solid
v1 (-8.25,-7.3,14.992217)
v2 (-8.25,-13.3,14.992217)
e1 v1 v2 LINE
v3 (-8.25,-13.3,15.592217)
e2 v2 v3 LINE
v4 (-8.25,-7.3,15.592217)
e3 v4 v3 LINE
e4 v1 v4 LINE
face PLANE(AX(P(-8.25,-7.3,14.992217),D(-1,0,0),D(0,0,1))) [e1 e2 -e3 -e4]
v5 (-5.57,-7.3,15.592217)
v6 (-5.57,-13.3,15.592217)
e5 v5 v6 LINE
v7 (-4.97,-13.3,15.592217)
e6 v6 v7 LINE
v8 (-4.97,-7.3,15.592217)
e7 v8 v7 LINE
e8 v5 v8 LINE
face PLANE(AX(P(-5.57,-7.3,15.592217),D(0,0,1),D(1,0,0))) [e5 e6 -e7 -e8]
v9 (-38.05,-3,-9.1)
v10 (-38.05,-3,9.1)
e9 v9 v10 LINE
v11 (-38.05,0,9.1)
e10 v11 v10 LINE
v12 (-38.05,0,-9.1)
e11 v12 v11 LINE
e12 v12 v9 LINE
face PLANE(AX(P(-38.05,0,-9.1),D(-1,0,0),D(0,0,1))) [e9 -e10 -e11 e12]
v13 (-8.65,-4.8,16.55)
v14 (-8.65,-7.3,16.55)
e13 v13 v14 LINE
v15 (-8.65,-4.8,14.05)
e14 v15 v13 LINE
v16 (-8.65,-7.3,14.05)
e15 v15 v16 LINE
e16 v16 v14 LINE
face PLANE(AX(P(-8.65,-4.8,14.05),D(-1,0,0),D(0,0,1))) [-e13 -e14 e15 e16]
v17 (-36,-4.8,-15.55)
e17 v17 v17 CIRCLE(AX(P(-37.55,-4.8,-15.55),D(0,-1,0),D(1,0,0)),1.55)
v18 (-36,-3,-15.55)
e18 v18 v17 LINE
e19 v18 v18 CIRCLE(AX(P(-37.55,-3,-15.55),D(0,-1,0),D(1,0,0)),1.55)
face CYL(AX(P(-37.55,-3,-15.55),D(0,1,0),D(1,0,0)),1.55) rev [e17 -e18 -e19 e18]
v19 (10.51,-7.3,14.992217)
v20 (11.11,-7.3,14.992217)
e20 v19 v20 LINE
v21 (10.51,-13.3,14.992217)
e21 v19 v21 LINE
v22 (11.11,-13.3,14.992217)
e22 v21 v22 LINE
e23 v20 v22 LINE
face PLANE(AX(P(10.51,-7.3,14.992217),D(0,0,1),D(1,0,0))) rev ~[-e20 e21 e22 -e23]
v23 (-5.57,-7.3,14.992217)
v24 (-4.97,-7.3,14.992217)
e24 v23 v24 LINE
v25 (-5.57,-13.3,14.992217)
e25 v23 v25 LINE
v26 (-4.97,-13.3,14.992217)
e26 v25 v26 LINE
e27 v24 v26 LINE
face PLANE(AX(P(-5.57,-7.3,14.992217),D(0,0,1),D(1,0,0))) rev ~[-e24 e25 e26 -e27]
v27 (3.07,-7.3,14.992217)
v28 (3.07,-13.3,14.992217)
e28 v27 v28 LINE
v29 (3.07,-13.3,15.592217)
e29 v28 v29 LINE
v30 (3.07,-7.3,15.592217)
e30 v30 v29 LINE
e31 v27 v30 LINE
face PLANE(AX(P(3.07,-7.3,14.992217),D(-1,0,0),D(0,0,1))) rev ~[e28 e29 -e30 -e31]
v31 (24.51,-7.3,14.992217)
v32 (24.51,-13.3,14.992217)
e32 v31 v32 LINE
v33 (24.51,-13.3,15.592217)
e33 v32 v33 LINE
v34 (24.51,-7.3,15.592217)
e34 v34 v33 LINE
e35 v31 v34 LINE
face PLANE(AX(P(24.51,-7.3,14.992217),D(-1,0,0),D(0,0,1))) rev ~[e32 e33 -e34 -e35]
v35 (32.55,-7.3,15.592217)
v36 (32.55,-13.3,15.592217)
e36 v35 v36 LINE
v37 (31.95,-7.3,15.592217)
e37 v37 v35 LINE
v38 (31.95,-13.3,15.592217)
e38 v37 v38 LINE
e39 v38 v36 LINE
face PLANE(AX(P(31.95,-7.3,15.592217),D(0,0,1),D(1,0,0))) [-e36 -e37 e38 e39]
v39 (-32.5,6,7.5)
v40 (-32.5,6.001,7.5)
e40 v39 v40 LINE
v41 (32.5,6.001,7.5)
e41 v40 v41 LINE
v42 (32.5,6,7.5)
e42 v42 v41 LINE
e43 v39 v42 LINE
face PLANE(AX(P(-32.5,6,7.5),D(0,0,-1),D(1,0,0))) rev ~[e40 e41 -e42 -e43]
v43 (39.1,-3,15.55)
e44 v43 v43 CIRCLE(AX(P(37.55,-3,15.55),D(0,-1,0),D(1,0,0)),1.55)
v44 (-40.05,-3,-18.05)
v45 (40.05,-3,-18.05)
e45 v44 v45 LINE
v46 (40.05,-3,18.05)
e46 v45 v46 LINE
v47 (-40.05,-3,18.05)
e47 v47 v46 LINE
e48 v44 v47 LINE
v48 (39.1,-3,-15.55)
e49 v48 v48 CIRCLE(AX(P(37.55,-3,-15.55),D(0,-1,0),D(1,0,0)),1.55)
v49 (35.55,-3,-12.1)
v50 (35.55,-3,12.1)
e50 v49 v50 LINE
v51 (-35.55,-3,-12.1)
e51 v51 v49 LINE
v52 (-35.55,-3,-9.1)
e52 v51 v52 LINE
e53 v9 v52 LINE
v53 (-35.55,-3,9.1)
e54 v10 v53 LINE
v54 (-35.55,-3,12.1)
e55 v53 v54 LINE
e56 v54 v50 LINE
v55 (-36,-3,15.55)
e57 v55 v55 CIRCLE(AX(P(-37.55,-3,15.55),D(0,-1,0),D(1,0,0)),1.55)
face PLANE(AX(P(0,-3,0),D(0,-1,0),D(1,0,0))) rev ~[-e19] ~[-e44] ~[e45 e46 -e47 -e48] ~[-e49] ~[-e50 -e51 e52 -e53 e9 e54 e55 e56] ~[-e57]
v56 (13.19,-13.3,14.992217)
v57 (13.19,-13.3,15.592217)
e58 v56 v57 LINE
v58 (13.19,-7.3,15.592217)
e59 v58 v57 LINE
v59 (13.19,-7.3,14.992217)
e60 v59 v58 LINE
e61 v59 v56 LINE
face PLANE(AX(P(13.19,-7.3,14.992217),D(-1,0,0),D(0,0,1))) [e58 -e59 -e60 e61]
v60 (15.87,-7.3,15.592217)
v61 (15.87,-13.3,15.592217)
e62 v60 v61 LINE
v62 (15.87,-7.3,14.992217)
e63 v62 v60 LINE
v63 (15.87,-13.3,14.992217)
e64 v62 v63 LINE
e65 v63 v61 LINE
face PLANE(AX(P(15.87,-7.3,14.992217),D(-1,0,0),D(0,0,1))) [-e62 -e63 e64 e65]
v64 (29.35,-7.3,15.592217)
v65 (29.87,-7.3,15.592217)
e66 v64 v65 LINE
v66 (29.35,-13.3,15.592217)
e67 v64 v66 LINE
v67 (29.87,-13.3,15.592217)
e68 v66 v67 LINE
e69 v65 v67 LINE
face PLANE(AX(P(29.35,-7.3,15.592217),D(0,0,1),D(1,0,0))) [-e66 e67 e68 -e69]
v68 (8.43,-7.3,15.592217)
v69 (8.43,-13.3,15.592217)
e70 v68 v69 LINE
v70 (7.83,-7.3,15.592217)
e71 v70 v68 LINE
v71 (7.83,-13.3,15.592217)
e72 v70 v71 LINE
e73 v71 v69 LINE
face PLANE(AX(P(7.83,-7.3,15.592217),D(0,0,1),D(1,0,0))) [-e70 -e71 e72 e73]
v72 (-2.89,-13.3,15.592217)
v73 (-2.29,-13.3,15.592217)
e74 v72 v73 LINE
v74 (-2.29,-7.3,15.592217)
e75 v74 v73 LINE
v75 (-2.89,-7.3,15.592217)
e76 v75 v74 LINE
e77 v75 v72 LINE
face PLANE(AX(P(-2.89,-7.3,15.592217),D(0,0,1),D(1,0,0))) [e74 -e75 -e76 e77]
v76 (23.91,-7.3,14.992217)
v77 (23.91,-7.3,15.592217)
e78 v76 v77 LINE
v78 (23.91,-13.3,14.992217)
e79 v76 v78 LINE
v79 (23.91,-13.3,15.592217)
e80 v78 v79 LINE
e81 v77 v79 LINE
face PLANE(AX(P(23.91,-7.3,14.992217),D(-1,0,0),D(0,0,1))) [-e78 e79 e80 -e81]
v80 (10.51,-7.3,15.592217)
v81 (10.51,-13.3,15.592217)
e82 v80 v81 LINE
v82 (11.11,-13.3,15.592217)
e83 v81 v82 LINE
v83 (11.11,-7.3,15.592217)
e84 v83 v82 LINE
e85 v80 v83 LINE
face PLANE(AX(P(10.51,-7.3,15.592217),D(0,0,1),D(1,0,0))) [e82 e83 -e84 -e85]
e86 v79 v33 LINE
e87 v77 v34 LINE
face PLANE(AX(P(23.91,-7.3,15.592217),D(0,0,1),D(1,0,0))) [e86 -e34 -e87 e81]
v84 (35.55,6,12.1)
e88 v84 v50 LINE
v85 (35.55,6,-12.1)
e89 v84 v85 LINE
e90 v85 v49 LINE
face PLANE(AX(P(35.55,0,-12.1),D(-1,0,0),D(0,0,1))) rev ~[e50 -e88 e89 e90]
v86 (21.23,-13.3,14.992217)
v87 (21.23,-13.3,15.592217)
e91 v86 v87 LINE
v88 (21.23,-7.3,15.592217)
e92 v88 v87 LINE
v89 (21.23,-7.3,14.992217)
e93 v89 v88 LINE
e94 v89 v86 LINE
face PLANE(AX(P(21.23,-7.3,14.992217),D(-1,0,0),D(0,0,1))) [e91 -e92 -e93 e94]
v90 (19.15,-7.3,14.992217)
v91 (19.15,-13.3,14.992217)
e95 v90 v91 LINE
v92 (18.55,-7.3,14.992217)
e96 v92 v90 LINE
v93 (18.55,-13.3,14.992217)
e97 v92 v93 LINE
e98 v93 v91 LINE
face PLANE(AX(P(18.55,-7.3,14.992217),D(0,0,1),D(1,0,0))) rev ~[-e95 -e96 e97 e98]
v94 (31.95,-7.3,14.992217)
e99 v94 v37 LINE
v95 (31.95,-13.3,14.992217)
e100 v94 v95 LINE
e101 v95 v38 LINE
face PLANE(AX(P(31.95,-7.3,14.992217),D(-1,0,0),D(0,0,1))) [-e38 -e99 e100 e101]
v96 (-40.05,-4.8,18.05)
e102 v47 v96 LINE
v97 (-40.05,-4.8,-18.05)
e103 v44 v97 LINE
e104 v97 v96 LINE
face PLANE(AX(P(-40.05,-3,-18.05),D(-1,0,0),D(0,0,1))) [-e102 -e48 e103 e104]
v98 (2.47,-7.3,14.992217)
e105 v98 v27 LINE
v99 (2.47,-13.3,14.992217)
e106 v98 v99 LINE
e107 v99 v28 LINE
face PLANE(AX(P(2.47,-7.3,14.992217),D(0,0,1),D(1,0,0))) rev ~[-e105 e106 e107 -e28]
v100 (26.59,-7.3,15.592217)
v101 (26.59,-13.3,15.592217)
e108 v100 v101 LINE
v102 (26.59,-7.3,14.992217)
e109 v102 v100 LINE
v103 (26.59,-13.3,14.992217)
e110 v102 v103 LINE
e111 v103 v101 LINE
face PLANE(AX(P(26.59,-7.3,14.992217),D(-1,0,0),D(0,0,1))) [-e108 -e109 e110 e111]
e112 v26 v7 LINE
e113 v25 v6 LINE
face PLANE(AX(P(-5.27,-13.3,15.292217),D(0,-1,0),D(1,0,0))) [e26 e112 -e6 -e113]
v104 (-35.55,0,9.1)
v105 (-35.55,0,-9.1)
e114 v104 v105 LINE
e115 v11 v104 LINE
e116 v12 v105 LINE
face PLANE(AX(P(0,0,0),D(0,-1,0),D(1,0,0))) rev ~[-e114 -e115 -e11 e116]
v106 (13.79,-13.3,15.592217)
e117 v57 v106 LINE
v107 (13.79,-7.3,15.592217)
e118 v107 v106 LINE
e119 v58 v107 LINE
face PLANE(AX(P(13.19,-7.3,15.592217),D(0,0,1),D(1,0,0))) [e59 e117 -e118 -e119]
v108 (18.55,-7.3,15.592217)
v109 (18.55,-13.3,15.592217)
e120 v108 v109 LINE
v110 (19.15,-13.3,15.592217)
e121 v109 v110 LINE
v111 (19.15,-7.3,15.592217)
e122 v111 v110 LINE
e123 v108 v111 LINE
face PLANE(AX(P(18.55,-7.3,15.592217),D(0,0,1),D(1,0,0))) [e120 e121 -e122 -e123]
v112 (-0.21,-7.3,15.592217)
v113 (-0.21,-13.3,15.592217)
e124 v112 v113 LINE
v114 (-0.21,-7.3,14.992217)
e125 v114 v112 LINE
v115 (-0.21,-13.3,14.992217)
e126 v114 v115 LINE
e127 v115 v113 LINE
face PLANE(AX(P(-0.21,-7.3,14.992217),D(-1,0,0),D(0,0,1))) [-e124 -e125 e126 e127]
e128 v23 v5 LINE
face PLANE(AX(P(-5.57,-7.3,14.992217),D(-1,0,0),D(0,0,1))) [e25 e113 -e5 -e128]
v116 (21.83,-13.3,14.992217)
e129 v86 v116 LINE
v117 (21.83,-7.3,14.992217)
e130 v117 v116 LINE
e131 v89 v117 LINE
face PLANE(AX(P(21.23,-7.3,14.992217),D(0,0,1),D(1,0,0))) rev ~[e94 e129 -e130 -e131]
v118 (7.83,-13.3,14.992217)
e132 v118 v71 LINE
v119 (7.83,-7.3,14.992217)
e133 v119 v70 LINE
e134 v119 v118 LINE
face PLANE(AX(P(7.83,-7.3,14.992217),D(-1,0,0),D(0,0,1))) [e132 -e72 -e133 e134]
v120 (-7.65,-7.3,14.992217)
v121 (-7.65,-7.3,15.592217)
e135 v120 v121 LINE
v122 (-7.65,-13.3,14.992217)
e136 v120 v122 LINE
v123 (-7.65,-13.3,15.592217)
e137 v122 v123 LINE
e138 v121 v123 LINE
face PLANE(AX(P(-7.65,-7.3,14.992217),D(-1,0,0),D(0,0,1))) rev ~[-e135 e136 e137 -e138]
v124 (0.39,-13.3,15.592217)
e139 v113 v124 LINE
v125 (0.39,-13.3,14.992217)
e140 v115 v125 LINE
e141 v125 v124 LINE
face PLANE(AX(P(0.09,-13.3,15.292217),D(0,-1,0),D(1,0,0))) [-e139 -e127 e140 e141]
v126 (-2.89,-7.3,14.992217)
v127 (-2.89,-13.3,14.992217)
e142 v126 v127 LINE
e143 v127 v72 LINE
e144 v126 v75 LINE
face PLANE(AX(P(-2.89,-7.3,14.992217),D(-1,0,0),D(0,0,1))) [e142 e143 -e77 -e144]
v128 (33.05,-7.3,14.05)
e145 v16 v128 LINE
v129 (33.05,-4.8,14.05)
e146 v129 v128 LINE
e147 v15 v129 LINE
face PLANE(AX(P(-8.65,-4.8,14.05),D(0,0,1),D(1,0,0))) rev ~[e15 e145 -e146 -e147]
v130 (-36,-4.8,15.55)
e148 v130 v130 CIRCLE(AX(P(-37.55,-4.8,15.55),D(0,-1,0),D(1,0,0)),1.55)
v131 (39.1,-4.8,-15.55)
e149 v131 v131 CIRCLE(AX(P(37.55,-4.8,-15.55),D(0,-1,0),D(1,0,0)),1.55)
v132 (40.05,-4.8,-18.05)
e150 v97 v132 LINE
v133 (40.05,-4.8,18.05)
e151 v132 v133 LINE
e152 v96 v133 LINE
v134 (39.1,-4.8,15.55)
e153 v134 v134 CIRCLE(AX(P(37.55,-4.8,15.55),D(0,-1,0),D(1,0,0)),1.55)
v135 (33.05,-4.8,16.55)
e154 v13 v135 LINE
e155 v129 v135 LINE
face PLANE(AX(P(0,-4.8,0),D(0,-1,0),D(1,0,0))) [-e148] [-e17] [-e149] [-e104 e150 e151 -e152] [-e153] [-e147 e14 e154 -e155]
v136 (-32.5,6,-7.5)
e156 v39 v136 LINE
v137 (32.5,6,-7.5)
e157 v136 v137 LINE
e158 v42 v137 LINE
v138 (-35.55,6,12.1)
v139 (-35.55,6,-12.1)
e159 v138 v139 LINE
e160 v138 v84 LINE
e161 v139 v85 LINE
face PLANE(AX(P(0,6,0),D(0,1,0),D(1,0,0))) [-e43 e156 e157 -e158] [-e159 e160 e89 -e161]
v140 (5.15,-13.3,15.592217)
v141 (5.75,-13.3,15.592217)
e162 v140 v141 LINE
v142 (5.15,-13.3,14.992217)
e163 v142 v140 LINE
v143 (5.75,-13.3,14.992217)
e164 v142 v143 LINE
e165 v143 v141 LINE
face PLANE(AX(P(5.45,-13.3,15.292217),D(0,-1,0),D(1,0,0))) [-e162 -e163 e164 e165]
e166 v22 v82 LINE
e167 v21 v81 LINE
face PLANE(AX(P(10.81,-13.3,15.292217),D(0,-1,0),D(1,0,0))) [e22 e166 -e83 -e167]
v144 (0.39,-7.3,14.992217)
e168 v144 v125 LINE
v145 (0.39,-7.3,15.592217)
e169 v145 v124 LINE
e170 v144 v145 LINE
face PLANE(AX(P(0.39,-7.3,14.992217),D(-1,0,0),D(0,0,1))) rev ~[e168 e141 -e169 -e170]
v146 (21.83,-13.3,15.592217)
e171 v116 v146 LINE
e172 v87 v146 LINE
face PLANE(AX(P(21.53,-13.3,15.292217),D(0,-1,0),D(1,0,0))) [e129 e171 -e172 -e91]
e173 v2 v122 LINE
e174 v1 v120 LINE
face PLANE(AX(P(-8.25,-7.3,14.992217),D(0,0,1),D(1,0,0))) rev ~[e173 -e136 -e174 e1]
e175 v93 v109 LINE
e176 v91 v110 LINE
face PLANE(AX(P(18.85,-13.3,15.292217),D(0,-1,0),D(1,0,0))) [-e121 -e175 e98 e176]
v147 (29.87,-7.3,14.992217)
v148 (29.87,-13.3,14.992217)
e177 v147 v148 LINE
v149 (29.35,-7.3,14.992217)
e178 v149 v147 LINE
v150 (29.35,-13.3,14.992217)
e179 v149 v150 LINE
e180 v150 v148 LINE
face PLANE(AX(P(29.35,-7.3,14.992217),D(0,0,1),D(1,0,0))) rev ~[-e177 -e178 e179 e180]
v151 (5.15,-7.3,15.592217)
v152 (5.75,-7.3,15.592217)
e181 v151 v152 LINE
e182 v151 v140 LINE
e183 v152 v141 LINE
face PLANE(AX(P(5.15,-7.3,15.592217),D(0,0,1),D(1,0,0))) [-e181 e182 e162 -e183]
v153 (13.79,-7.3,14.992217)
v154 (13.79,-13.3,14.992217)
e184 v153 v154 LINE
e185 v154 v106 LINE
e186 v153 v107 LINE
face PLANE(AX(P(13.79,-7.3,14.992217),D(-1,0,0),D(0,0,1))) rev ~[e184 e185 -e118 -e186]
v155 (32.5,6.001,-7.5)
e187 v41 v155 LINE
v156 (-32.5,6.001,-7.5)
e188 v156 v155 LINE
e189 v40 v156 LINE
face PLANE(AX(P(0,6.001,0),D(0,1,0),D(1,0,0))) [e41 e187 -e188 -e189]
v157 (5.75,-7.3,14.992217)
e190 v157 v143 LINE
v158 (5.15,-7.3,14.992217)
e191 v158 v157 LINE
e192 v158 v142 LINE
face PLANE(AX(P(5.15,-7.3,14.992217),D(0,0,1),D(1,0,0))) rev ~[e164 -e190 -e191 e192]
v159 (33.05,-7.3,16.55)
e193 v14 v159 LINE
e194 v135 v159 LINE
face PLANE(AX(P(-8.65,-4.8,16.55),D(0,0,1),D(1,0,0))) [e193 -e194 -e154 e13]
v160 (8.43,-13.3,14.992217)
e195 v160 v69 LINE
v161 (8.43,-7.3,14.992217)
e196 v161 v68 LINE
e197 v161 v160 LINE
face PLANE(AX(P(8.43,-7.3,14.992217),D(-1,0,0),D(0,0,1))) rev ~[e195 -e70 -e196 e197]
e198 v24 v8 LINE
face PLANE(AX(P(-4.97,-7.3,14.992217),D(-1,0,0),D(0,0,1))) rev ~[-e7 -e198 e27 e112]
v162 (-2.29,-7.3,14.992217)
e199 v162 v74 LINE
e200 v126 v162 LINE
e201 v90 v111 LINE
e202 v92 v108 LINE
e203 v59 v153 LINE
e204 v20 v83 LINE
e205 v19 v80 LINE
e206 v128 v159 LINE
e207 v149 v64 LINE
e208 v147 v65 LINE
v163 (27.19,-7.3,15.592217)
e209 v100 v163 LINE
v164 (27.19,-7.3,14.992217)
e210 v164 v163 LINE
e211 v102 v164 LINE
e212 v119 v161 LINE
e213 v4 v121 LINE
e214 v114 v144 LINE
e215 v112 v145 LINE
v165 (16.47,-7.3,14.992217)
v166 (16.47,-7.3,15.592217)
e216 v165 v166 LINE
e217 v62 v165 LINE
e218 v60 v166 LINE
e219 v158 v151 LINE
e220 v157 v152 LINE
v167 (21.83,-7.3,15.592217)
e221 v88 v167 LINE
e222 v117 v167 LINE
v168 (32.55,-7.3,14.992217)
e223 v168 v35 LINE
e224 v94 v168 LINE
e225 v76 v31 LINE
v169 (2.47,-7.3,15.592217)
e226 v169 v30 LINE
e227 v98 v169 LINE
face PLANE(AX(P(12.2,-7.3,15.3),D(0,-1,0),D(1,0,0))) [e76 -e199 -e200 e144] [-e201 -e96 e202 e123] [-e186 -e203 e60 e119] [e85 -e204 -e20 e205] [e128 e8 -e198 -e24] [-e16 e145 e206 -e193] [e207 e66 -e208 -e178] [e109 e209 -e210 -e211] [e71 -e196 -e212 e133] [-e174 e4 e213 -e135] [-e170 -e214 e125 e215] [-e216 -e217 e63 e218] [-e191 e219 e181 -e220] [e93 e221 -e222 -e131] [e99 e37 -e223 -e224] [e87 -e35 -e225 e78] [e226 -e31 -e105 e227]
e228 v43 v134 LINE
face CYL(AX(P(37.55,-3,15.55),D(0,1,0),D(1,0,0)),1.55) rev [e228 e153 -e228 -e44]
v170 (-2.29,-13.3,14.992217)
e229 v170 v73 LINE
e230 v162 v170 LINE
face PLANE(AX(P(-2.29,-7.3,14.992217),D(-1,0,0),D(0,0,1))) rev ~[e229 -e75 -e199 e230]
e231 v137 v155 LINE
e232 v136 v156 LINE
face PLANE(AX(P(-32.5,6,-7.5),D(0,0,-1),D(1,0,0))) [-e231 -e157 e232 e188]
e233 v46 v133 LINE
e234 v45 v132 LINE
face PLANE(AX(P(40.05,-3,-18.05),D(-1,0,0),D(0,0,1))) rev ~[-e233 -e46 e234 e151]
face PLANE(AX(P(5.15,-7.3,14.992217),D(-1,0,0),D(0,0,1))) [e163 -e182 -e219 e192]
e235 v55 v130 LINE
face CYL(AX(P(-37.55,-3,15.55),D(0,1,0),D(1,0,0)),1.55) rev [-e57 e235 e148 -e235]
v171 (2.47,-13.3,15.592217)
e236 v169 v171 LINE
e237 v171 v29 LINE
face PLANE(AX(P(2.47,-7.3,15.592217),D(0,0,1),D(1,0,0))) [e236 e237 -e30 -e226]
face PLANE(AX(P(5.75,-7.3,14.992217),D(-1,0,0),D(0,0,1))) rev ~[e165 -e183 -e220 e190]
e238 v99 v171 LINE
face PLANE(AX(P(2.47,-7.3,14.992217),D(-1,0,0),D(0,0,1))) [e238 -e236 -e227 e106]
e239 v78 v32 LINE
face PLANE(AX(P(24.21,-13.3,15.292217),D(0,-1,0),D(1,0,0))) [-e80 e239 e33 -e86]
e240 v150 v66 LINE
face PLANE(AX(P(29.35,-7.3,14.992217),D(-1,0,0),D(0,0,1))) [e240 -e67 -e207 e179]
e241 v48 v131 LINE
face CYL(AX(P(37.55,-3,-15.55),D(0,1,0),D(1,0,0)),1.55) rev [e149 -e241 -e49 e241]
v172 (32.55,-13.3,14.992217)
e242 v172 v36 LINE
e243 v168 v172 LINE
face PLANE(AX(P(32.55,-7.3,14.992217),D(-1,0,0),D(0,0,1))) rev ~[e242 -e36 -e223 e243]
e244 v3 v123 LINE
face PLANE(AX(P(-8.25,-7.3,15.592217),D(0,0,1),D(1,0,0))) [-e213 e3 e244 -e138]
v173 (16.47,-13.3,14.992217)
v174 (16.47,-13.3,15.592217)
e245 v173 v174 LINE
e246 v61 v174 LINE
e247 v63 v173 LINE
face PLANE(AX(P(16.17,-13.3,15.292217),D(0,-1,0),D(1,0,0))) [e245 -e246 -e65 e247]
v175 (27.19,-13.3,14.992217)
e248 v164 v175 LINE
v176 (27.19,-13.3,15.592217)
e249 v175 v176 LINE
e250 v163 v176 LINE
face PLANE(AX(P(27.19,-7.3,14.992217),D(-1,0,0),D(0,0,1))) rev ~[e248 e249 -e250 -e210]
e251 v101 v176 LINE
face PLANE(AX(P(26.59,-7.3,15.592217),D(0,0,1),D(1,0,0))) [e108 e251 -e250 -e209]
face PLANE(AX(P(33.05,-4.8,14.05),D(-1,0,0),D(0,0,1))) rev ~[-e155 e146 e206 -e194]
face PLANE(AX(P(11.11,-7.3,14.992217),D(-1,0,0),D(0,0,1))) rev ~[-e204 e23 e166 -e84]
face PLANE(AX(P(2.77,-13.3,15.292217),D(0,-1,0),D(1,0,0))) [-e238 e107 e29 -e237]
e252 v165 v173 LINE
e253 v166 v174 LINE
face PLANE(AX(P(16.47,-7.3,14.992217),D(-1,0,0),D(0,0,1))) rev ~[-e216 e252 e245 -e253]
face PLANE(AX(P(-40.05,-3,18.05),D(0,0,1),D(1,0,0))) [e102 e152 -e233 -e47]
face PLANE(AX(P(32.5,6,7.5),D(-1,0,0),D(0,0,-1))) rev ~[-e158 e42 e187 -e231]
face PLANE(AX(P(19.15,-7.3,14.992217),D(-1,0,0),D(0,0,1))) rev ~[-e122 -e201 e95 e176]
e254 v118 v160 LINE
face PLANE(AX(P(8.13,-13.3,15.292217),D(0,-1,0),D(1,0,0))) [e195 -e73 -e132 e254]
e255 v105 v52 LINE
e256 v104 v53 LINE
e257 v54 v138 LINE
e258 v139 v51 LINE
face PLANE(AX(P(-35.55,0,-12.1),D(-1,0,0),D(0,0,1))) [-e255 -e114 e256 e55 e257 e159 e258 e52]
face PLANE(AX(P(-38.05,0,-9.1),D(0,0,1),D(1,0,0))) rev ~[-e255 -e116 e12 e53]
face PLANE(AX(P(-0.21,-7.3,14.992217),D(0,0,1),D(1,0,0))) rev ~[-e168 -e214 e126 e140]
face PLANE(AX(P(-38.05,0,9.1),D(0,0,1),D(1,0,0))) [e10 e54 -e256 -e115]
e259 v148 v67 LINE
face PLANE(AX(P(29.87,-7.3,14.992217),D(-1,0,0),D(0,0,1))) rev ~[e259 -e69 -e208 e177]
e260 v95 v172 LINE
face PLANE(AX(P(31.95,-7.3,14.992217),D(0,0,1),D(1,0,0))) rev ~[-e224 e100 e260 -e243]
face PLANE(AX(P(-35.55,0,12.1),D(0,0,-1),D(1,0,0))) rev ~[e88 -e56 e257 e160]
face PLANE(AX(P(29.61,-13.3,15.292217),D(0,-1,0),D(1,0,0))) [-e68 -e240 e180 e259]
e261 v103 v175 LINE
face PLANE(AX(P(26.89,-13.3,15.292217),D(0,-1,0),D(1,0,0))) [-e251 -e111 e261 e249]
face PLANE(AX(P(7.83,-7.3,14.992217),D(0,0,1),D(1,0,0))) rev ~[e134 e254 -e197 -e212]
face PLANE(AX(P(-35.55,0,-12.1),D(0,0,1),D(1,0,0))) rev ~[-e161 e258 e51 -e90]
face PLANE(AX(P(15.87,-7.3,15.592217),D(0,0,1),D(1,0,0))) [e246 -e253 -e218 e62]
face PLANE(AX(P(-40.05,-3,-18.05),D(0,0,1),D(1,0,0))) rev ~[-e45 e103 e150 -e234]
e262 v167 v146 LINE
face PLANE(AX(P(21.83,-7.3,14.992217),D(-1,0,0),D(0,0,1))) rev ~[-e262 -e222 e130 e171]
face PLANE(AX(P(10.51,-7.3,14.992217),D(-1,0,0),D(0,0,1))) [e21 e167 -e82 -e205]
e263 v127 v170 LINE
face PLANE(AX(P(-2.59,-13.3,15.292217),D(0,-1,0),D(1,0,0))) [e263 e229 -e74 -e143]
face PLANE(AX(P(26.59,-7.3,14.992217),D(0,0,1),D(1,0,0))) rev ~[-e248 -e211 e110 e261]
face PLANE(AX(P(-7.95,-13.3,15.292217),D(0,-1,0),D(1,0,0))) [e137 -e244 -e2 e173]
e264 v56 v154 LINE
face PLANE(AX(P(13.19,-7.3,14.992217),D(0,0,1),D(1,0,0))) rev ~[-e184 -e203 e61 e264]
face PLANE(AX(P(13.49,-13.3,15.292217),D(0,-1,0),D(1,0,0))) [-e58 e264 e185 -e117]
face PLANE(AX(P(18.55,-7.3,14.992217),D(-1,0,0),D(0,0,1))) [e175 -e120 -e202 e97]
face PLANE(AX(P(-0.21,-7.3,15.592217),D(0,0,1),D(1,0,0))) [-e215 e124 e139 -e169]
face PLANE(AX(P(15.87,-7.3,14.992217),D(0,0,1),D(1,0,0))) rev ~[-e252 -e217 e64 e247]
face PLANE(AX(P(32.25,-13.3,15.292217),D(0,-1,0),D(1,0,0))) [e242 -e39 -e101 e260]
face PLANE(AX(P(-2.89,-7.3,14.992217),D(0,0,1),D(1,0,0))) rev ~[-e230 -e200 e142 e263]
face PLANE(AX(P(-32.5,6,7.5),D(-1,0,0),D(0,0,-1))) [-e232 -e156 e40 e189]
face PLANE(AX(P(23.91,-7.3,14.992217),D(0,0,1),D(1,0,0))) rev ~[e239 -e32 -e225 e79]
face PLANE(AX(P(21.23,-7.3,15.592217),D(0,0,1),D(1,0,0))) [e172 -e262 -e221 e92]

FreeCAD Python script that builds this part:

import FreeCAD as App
import Part
import Sketcher
from FreeCAD import Vector

doc = App.newDocument("Part")
body = doc.addObject("PartDesign::Body", "Body")

# Sketch on XZ plane
sketch1 = body.newObject("Sketcher::SketchObject", "Sketch")
sketch1.AttachmentSupport = (doc.getObject("XZ_Plane"), [""])
sketch1.MapMode = "FlatFace"
sketch1.addGeometry(Part.LineSegment(Vector(-36, -12, 0), Vector(-36, 12, 0)), False)
sketch1.addGeometry(Part.LineSegment(Vector(-36, 12, 0), Vector(36, 12, 0)), False)
sketch1.addGeometry(Part.LineSegment(Vector(36, 12, 0), Vector(36, -12, 0)), False)
sketch1.addGeometry(Part.LineSegment(Vector(36, -12, 0), Vector(-36, -12, 0)), False)
sketch1.addConstraint(Sketcher.Constraint("Coincident", 0, 2, 1, 1))
sketch1.addConstraint(Sketcher.Constraint("Coincident", 1, 2, 2, 1))
sketch1.addConstraint(Sketcher.Constraint("Coincident", 2, 2, 3, 1))
sketch1.addConstraint(Sketcher.Constraint("Coincident", 3, 2, 0, 1))
sketch1.addConstraint(Sketcher.Constraint("Vertical", 0))
sketch1.addConstraint(Sketcher.Constraint("Horizontal", 1))
sketch1.addConstraint(Sketcher.Constraint("Vertical", 2))
sketch1.addConstraint(Sketcher.Constraint("Horizontal", 3))
sketch1.addConstraint(Sketcher.Constraint("Symmetric", 0, 2, 2, 2, -1, 1))
sketch1.addConstraint(Sketcher.Constraint("DistanceX", 1, 1, 1, 2, 71.1))
sketch1.addConstraint(Sketcher.Constraint("DistanceY", 0, 1, 0, 2, 24.2))
pad1 = body.newObject("PartDesign::Pad", "Pad")
pad1.Profile = sketch1
pad1.Length = 6
pad1.Reversed = True

# Sketch on XZ plane
sketch2 = body.newObject("Sketcher::SketchObject", "Sketch001")
sketch2.AttachmentSupport = (doc.getObject("XZ_Plane"), [""])
sketch2.MapMode = "FlatFace"
sketch2.addGeometry(Part.LineSegment(Vector(-35.5, -9.1, 0), Vector(-35.5, -12.1, 0)), False)
sketch2.addGeometry(Part.LineSegment(Vector(-35.5, -12.1, 0), Vector(35.5, -12.1, 0)), False)
sketch2.addGeometry(Part.LineSegment(Vector(35.5, -12.1, 0), Vector(35.5, 12.1, 0)), False)
sketch2.addGeometry(Part.LineSegment(Vector(35.5, 12.1, 0), Vector(-35.5, 12.1, 0)), False)
sketch2.addGeometry(Part.LineSegment(Vector(-35.5, 12.1, 0), Vector(-35.5, 9.1, 0)), False)
sketch2.addGeometry(Part.LineSegment(Vector(-35.5, 9.1, 0), Vector(-38, 9.1, 0)), False)
sketch2.addGeometry(Part.LineSegment(Vector(-38, 9.1, 0), Vector(-38, -9.1, 0)), False)
sketch2.addGeometry(Part.LineSegment(Vector(-38, -9.1, 0), Vector(-35.5, -9.1, 0)), False)
sketch2.addConstraint(Sketcher.Constraint("Coincident", 0, 2, 1, 1))
sketch2.addConstraint(Sketcher.Constraint("Coincident", 1, 2, 2, 1))
sketch2.addConstraint(Sketcher.Constraint("Coincident", 2, 2, 3, 1))
sketch2.addConstraint(Sketcher.Constraint("Coincident", 3, 2, 4, 1))
sketch2.addConstraint(Sketcher.Constraint("Coincident", 4, 2, 5, 1))
sketch2.addConstraint(Sketcher.Constraint("Coincident", 5, 2, 6, 1))
sketch2.addConstraint(Sketcher.Constraint("Coincident", 6, 2, 7, 1))
sketch2.addConstraint(Sketcher.Constraint("Coincident", 7, 2, 0, 1))
sketch2.addConstraint(Sketcher.Constraint("Vertical", 0))
sketch2.addConstraint(Sketcher.Constraint("Horizontal", 1))
sketch2.addConstraint(Sketcher.Constraint("Vertical", 2))
sketch2.addConstraint(Sketcher.Constraint("Horizontal", 3))
sketch2.addConstraint(Sketcher.Constraint("Vertical", 4))
sketch2.addConstraint(Sketcher.Constraint("Horizontal", 5))
sketch2.addConstraint(Sketcher.Constraint("Vertical", 6))
sketch2.addConstraint(Sketcher.Constraint("Horizontal", 7))
sketch2.addConstraint(Sketcher.Constraint("Symmetric", 0, 2, 2, 2, -1, 1))
sketch2.addConstraint(Sketcher.Constraint("Symmetric", 4, 2, 7, 2, -1))
sketch2.addConstraint(Sketcher.Constraint("DistanceY", 0, 2, 0, 1, 3.0))
sketch2.addConstraint(Sketcher.Constraint("DistanceX", 1, 1, 1, 2, 71.1))
sketch2.addConstraint(Sketcher.Constraint("DistanceX", 5, 2, 5, 1, 2.5))
sketch2.addConstraint(Sketcher.Constraint("DistanceY", 2, 1, 2, 2, 24.2))
pad2 = body.newObject("PartDesign::Pad", "Pad001")
pad2.Profile = sketch2
pad2.Length = 3

# Sketch on XZ plane
sketch3 = body.newObject("Sketcher::SketchObject", "Sketch002")
sketch3.AttachmentSupport = (doc.getObject("XZ_Plane"), [""])
sketch3.MapMode = "FlatFace"
sketch3.AttachmentOffset = App.Placement(Vector(0, 0, 3), App.Rotation())
sketch3.addGeometry(Part.LineSegment(Vector(-40, 18.1, 0), Vector(-40, -18.1, 0)), False)
sketch3.addGeometry(Part.LineSegment(Vector(-40, -18.1, 0), Vector(40, -18.1, 0)), False)
sketch3.addGeometry(Part.LineSegment(Vector(40, -18.1, 0), Vector(40, 18.1, 0)), False)
sketch3.addGeometry(Part.LineSegment(Vector(40, 18.1, 0), Vector(-40, 18.1, 0)), False)
sketch3.addGeometry(Part.Circle(Vector(-37.5, -15.6, 0), Vector(0, 0, 1), 1.6), False)
sketch3.addGeometry(Part.Circle(Vector(37.5, -15.6, 0), Vector(0, 0, 1), 1.6), False)
sketch3.addGeometry(Part.Circle(Vector(-37.5, 15.6, 0), Vector(0, 0, 1), 1.6), False)
sketch3.addGeometry(Part.Circle(Vector(37.5, 15.6, 0), Vector(0, 0, 1), 1.6), False)
sketch3.addConstraint(Sketcher.Constraint("Coincident", 0, 2, 1, 1))
sketch3.addConstraint(Sketcher.Constraint("Coincident", 1, 2, 2, 1))
sketch3.addConstraint(Sketcher.Constraint("Coincident", 2, 2, 3, 1))
sketch3.addConstraint(Sketcher.Constraint("Coincident", 3, 2, 0, 1))
sketch3.addConstraint(Sketcher.Constraint("Vertical", 0))
sketch3.addConstraint(Sketcher.Constraint("Horizontal", 1))
sketch3.addConstraint(Sketcher.Constraint("Vertical", 2))
sketch3.addConstraint(Sketcher.Constraint("Horizontal", 3))
sketch3.addConstraint(Sketcher.Constraint("Equal", 4, 5))
sketch3.addConstraint(Sketcher.Constraint("Equal", 5, 6))
sketch3.addConstraint(Sketcher.Constraint("Equal", 6, 7))
sketch3.addConstraint(Sketcher.Constraint("Symmetric", 5, 3, 6, 3, -1, 1))
sketch3.addConstraint(Sketcher.Constraint("Symmetric", 4, 3, 7, 3, -1, 1))
sketch3.addConstraint(Sketcher.Constraint("Symmetric", 0, 2, 2, 2, -1, 1))
sketch3.addConstraint(Sketcher.Constraint("Symmetric", 4, 3, 5, 3, -2))
sketch3.addConstraint(Sketcher.Constraint("Diameter", 4, 3.1))
sketch3.addConstraint(Sketcher.Constraint("DistanceX", 1, 1, 1, 2, 80.1))
sketch3.addConstraint(Sketcher.Constraint("DistanceY", 0, 2, 0, 1, 36.1))
sketch3.addConstraint(Sketcher.Constraint("DistanceX", 4, 3, 5, 3, 75.1))
sketch3.addConstraint(Sketcher.Constraint("DistanceY", 4, 3, 6, 3, 31.1))
pad3 = body.newObject("PartDesign::Pad", "Pad002")
pad3.Profile = sketch3
pad3.Length = 1.8

# Sketch on XZ plane
sketch4 = body.newObject("Sketcher::SketchObject", "Sketch003")
sketch4.AttachmentSupport = (doc.getObject("XZ_Plane"), [""])
sketch4.MapMode = "FlatFace"
sketch4.AttachmentOffset = App.Placement(Vector(0, 0, -6), App.Rotation())
sketch4.addGeometry(Part.LineSegment(Vector(-32, -8, 0), Vector(-32, 8, 0)), False)
sketch4.addGeometry(Part.LineSegment(Vector(-32, 8, 0), Vector(32, 8, 0)), False)
sketch4.addGeometry(Part.LineSegment(Vector(32, 8, 0), Vector(32, -8, 0)), False)
sketch4.addGeometry(Part.LineSegment(Vector(32, -8, 0), Vector(-32, -8, 0)), False)
sketch4.addConstraint(Sketcher.Constraint("Coincident", 0, 2, 1, 1))
sketch4.addConstraint(Sketcher.Constraint("Coincident", 1, 2, 2, 1))
sketch4.addConstraint(Sketcher.Constraint("Coincident", 2, 2, 3, 1))
sketch4.addConstraint(Sketcher.Constraint("Coincident", 3, 2, 0, 1))
sketch4.addConstraint(Sketcher.Constraint("Vertical", 0))
sketch4.addConstraint(Sketcher.Constraint("Horizontal", 1))
sketch4.addConstraint(Sketcher.Constraint("Vertical", 2))
sketch4.addConstraint(Sketcher.Constraint("Horizontal", 3))
sketch4.addConstraint(Sketcher.Constraint("Symmetric", 0, 2, 2, 2, -1, 1))
sketch4.addConstraint(Sketcher.Constraint("DistanceX", 1, 1, 1, 2, 65.0))
sketch4.addConstraint(Sketcher.Constraint("DistanceY", 0, 1, 0, 2, 15.0))
pad4 = body.newObject("PartDesign::Pad", "Pad003")
pad4.Profile = sketch4
pad4.Type = "TwoLengths"
pad4.Length = 0.001
pad4.Length2 = 6
pad4.Reversed = True

# Sketch on XZ plane
sketch5 = body.newObject("Sketcher::SketchObject", "Sketch004")
sketch5.AttachmentSupport = (doc.getObject("XZ_Plane"), [""])
sketch5.MapMode = "FlatFace"
sketch5.AttachmentOffset = App.Placement(Vector(0, 0, 4.8), App.Rotation())
sketch5.addGeometry(Part.LineSegment(Vector(-8.7, 16.6, 0), Vector(-8.7, 14.1, 0)), False)
sketch5.addGeometry(Part.LineSegment(Vector(-8.7, 14.1, 0), Vector(33, 14.1, 0)), False)
sketch5.addGeometry(Part.LineSegment(Vector(33, 14.1, 0), Vector(33, 16.6, 0)), False)
sketch5.addGeometry(Part.LineSegment(Vector(33, 16.6, 0), Vector(-8.7, 16.6, 0)), False)
sketch5.addConstraint(Sketcher.Constraint("Coincident", 0, 2, 1, 1))
sketch5.addConstraint(Sketcher.Constraint("Coincident", 1, 2, 2, 1))
sketch5.addConstraint(Sketcher.Constraint("Coincident", 2, 2, 3, 1))
sketch5.addConstraint(Sketcher.Constraint("Coincident", 3, 2, 0, 1))
sketch5.addConstraint(Sketcher.Constraint("Vertical", 0))
sketch5.addConstraint(Sketcher.Constraint("Horizontal", 1))
sketch5.addConstraint(Sketcher.Constraint("Vertical", 2))
sketch5.addConstraint(Sketcher.Constraint("Horizontal", 3))
sketch5.addConstraint(Sketcher.Constraint("DistanceX", 1, 1, 1, 2, 41.7))
sketch5.addConstraint(Sketcher.Constraint("DistanceY", 0, 2, 0, 1, 2.5))
sketch5.addConstraint(Sketcher.Constraint("DistanceX", 0, 2, -1, 1, 8.65))
sketch5.addConstraint(Sketcher.Constraint("DistanceY", -1, 1, 0, 2, 14.05))
pad5 = body.newObject("PartDesign::Pad", "Pad004")
pad5.Profile = sketch5
pad5.Length = 2.5

# Sketch on XZ plane
sketch6 = body.newObject("Sketcher::SketchObject", "Sketch005")
sketch6.AttachmentSupport = (doc.getObject("XZ_Plane"), [""])
sketch6.MapMode = "FlatFace"
sketch6.AttachmentOffset = App.Placement(Vector(0, 0, 7.3), App.Rotation())
sketch6.addGeometry(Part.LineSegment(Vector(31.9, 15.6, 0), Vector(31.9, 15, 0)), False)
sketch6.addGeometry(Part.LineSegment(Vector(31.9, 15, 0), Vector(32.5, 15, 0)), False)
sketch6.addGeometry(Part.LineSegment(Vector(32.5, 15, 0), Vector(32.5, 15.6, 0)), False)
sketch6.addGeometry(Part.LineSegment(Vector(32.5, 15.6, 0), Vector(31.9, 15.6, 0)), False)
sketch6.addGeometry(Part.LineSegment(Vector(29.4, 15.6, 0), Vector(29.4, 15, 0)), False)
sketch6.addGeometry(Part.LineSegment(Vector(29.4, 15, 0), Vector(29.9, 15, 0)), False)
sketch6.addGeometry(Part.LineSegment(Vector(29.9, 15, 0), Vector(29.9, 15.6, 0)), False)
sketch6.addGeometry(Part.LineSegment(Vector(29.9, 15.6, 0), Vector(29.4, 15.6, 0)), False)
sketch6.addGeometry(Part.LineSegment(Vector(26.6, 15.6, 0), Vector(26.6, 15, 0)), False)
sketch6.addGeometry(Part.LineSegment(Vector(26.6, 15, 0), Vector(27.2, 15, 0)), False)
sketch6.addGeometry(Part.LineSegment(Vector(27.2, 15, 0), Vector(27.2, 15.6, 0)), False)
sketch6.addGeometry(Part.LineSegment(Vector(27.2, 15.6, 0), Vector(26.6, 15.6, 0)), False)
sketch6.addGeometry(Part.LineSegment(Vector(23.9, 15.6, 0), Vector(23.9, 15, 0)), False)
sketch6.addGeometry(Part.LineSegment(Vector(23.9, 15, 0), Vector(24.5, 15, 0)), False)
sketch6.addGeometry(Part.LineSegment(Vector(24.5, 15, 0), Vector(24.5, 15.6, 0)), False)
sketch6.addGeometry(Part.LineSegment(Vector(24.5, 15.6, 0), Vector(23.9, 15.6, 0)), False)
sketch6.addGeometry(Part.LineSegment(Vector(21.2, 15.6, 0), Vector(21.2, 15, 0)), False)
sketch6.addGeometry(Part.LineSegment(Vector(21.2, 15, 0), Vector(21.8, 15, 0)), False)
sketch6.addGeometry(Part.LineSegment(Vector(21.8, 15, 0), Vector(21.8, 15.6, 0)), False)
sketch6.addGeometry(Part.LineSegment(Vector(21.8, 15.6, 0), Vector(21.2, 15.6, 0)), False)
sketch6.addGeometry(Part.LineSegment(Vector(18.6, 15.6, 0), Vector(18.6, 15, 0)), False)
sketch6.addGeometry(Part.LineSegment(Vector(18.6, 15, 0), Vector(19.1, 15, 0)), False)
sketch6.addGeometry(Part.LineSegment(Vector(19.1, 15, 0), Vector(19.1, 15.6, 0)), False)
sketch6.addGeometry(Part.LineSegment(Vector(19.1, 15.6, 0), Vector(18.6, 15.6, 0)), False)
sketch6.addGeometry(Part.LineSegment(Vector(15.9, 15.6, 0), Vector(15.9, 15, 0)), False)
sketch6.addGeometry(Part.LineSegment(Vector(15.9, 15, 0), Vector(16.5, 15, 0)), False)
sketch6.addGeometry(Part.LineSegment(Vector(16.5, 15, 0), Vector(16.5, 15.6, 0)), False)
sketch6.addGeometry(Part.LineSegment(Vector(16.5, 15.6, 0), Vector(15.9, 15.6, 0)), False)
sketch6.addGeometry(Part.LineSegment(Vector(13.2, 15.6, 0), Vector(13.2, 15, 0)), False)
sketch6.addGeometry(Part.LineSegment(Vector(13.2, 15, 0), Vector(13.8, 15, 0)), False)
sketch6.addGeometry(Part.LineSegment(Vector(13.8, 15, 0), Vector(13.8, 15.6, 0)), False)
sketch6.addGeometry(Part.LineSegment(Vector(13.8, 15.6, 0), Vector(13.2, 15.6, 0)), False)
sketch6.addGeometry(Part.LineSegment(Vector(10.5, 15.6, 0), Vector(10.5, 15, 0)), False)
sketch6.addGeometry(Part.LineSegment(Vector(10.5, 15, 0), Vector(11.1, 15, 0)), False)
sketch6.addGeometry(Part.LineSegment(Vector(11.1, 15, 0), Vector(11.1, 15.6, 0)), False)
sketch6.addGeometry(Part.LineSegment(Vector(11.1, 15.6, 0), Vector(10.5, 15.6, 0)), False)
sketch6.addGeometry(Part.LineSegment(Vector(7.8, 15.6, 0), Vector(7.8, 15, 0)), False)
sketch6.addGeometry(Part.LineSegment(Vector(7.8, 15, 0), Vector(8.4, 15, 0)), False)
sketch6.addGeometry(Part.LineSegment(Vector(8.4, 15, 0), Vector(8.4, 15.6, 0)), False)
sketch6.addGeometry(Part.LineSegment(Vector(8.4, 15.6, 0), Vector(7.8, 15.6, 0)), False)
sketch6.addGeometry(Part.LineSegment(Vector(5.2, 15.6, 0), Vector(5.2, 15, 0)), False)
sketch6.addGeometry(Part.LineSegment(Vector(5.2, 15, 0), Vector(5.8, 15, 0)), False)
sketch6.addGeometry(Part.LineSegment(Vector(5.8, 15, 0), Vector(5.8, 15.6, 0)), False)
sketch6.addGeometry(Part.LineSegment(Vector(5.8, 15.6, 0), Vector(5.2, 15.6, 0)), False)
sketch6.addGeometry(Part.LineSegment(Vector(2.5, 15.6, 0), Vector(2.5, 15, 0)), False)
sketch6.addGeometry(Part.LineSegment(Vector(2.5, 15, 0), Vector(3.1, 15, 0)), False)
sketch6.addGeometry(Part.LineSegment(Vector(3.1, 15, 0), Vector(3.1, 15.6, 0)), False)
sketch6.addGeometry(Part.LineSegment(Vector(3.1, 15.6, 0), Vector(2.5, 15.6, 0)), False)
sketch6.addGeometry(Part.LineSegment(Vector(-8.2, 15.6, 0), Vector(-8.2, 15, 0)), False)
sketch6.addGeometry(Part.LineSegment(Vector(-8.2, 15, 0), Vector(-7.7, 15, 0)), False)
sketch6.addGeometry(Part.LineSegment(Vector(-7.7, 15, 0), Vector(-7.7, 15.6, 0)), False)
sketch6.addGeometry(Part.LineSegment(Vector(-7.7, 15.6, 0), Vector(-8.2, 15.6, 0)), False)
sketch6.addGeometry(Part.LineSegment(Vector(-5.6, 15.6, 0), Vector(-5.6, 15, 0)), False)
sketch6.addGeometry(Part.LineSegment(Vector(-5.6, 15, 0), Vector(-5, 15, 0)), False)
sketch6.addGeometry(Part.LineSegment(Vector(-5, 15, 0), Vector(-5, 15.6, 0)), False)
sketch6.addGeometry(Part.LineSegment(Vector(-5, 15.6, 0), Vector(-5.6, 15.6, 0)), False)
sketch6.addGeometry(Part.LineSegment(Vector(-0.2, 15.6, 0), Vector(-0.2, 15, 0)), False)
sketch6.addGeometry(Part.LineSegment(Vector(-0.2, 15, 0), Vector(0.4, 15, 0)), False)
sketch6.addGeometry(Part.LineSegment(Vector(0.4, 15, 0), Vector(0.4, 15.6, 0)), False)
sketch6.addGeometry(Part.LineSegment(Vector(0.4, 15.6, 0), Vector(-0.2, 15.6, 0)), False)
sketch6.addGeometry(Part.LineSegment(Vector(-2.9, 15.6, 0), Vector(-2.9, 15, 0)), False)
sketch6.addGeometry(Part.LineSegment(Vector(-2.9, 15, 0), Vector(-2.3, 15, 0)), False)
sketch6.addGeometry(Part.LineSegment(Vector(-2.3, 15, 0), Vector(-2.3, 15.6, 0)), False)
sketch6.addGeometry(Part.LineSegment(Vector(-2.3, 15.6, 0), Vector(-2.9, 15.6, 0)), False)
sketch6.addConstraint(Sketcher.Constraint("Coincident", 0, 2, 1, 1))
sketch6.addConstraint(Sketcher.Constraint("Coincident", 1, 2, 2, 1))
sketch6.addConstraint(Sketcher.Constraint("Coincident", 2, 2, 3, 1))
sketch6.addConstraint(Sketcher.Constraint("Coincident", 3, 2, 0, 1))
sketch6.addConstraint(Sketcher.Constraint("Coincident", 4, 2, 5, 1))
sketch6.addConstraint(Sketcher.Constraint("Coincident", 5, 2, 6, 1))
sketch6.addConstraint(Sketcher.Constraint("Coincident", 6, 2, 7, 1))
sketch6.addConstraint(Sketcher.Constraint("Coincident", 7, 2, 4, 1))
sketch6.addConstraint(Sketcher.Constraint("Coincident", 8, 2, 9, 1))
sketch6.addConstraint(Sketcher.Constraint("Coincident", 9, 2, 10, 1))
sketch6.addConstraint(Sketcher.Constraint("Coincident", 10, 2, 11, 1))
sketch6.addConstraint(Sketcher.Constraint("Coincident", 11, 2, 8, 1))
sketch6.addConstraint(Sketcher.Constraint("Coincident", 12, 2, 13, 1))
sketch6.addConstraint(Sketcher.Constraint("Coincident", 13, 2, 14, 1))
sketch6.addConstraint(Sketcher.Constraint("Coincident", 14, 2, 15, 1))
sketch6.addConstraint(Sketcher.Constraint("Coincident", 15, 2, 12, 1))
sketch6.addConstraint(Sketcher.Constraint("Coincident", 16, 2, 17, 1))
sketch6.addConstraint(Sketcher.Constraint("Coincident", 17, 2, 18, 1))
sketch6.addConstraint(Sketcher.Constraint("Coincident", 18, 2, 19, 1))
sketch6.addConstraint(Sketcher.Constraint("Coincident", 19, 2, 16, 1))
sketch6.addConstraint(Sketcher.Constraint("Coincident", 20, 2, 21, 1))
sketch6.addConstraint(Sketcher.Constraint("Coincident", 21, 2, 22, 1))
sketch6.addConstraint(Sketcher.Constraint("Coincident", 22, 2, 23, 1))
sketch6.addConstraint(Sketcher.Constraint("Coincident", 23, 2, 20, 1))
sketch6.addConstraint(Sketcher.Constraint("Coincident", 24, 2, 25, 1))
sketch6.addConstraint(Sketcher.Constraint("Coincident", 25, 2, 26, 1))
sketch6.addConstraint(Sketcher.Constraint("Coincident", 26, 2, 27, 1))
sketch6.addConstraint(Sketcher.Constraint("Coincident", 27, 2, 24, 1))
sketch6.addConstraint(Sketcher.Constraint("Coincident", 28, 2, 29, 1))
sketch6.addConstraint(Sketcher.Constraint("Coincident", 29, 2, 30, 1))
sketch6.addConstraint(Sketcher.Constraint("Coincident", 30, 2, 31, 1))
sketch6.addConstraint(Sketcher.Constraint("Coincident", 31, 2, 28, 1))
sketch6.addConstraint(Sketcher.Constraint("Coincident", 32, 2, 33, 1))
sketch6.addConstraint(Sketcher.Constraint("Coincident", 33, 2, 34, 1))
sketch6.addConstraint(Sketcher.Constraint("Coincident", 34, 2, 35, 1))
sketch6.addConstraint(Sketcher.Constraint("Coincident", 35, 2, 32, 1))
sketch6.addConstraint(Sketcher.Constraint("Coincident", 36, 2, 37, 1))
sketch6.addConstraint(Sketcher.Constraint("Coincident", 37, 2, 38, 1))
sketch6.addConstraint(Sketcher.Constraint("Coincident", 38, 2, 39, 1))
sketch6.addConstraint(Sketcher.Constraint("Coincident", 39, 2, 36, 1))
sketch6.addConstraint(Sketcher.Constraint("Coincident", 40, 2, 41, 1))
sketch6.addConstraint(Sketcher.Constraint("Coincident", 41, 2, 42, 1))
sketch6.addConstraint(Sketcher.Constraint("Coincident", 42, 2, 43, 1))
sketch6.addConstraint(Sketcher.Constraint("Coincident", 43, 2, 40, 1))
sketch6.addConstraint(Sketcher.Constraint("Coincident", 44, 2, 45, 1))
sketch6.addConstraint(Sketcher.Constraint("Coincident", 45, 2, 46, 1))
sketch6.addConstraint(Sketcher.Constraint("Coincident", 46, 2, 47, 1))
sketch6.addConstraint(Sketcher.Constraint("Coincident", 47, 2, 44, 1))
sketch6.addConstraint(Sketcher.Constraint("Coincident", 48, 2, 49, 1))
sketch6.addConstraint(Sketcher.Constraint("Coincident", 49, 2, 50, 1))
sketch6.addConstraint(Sketcher.Constraint("Coincident", 50, 2, 51, 1))
sketch6.addConstraint(Sketcher.Constraint("Coincident", 51, 2, 48, 1))
sketch6.addConstraint(Sketcher.Constraint("Coincident", 52, 2, 53, 1))
sketch6.addConstraint(Sketcher.Constraint("Coincident", 53, 2, 54, 1))
sketch6.addConstraint(Sketcher.Constraint("Coincident", 54, 2, 55, 1))
sketch6.addConstraint(Sketcher.Constraint("Coincident", 55, 2, 52, 1))
sketch6.addConstraint(Sketcher.Constraint("Coincident", 56, 2, 57, 1))
sketch6.addConstraint(Sketcher.Constraint("Coincident", 57, 2, 58, 1))
sketch6.addConstraint(Sketcher.Constraint("Coincident", 58, 2, 59, 1))
sketch6.addConstraint(Sketcher.Constraint("Coincident", 59, 2, 56, 1))
sketch6.addConstraint(Sketcher.Constraint("Coincident", 60, 2, 61, 1))
sketch6.addConstraint(Sketcher.Constraint("Coincident", 61, 2, 62, 1))
sketch6.addConstraint(Sketcher.Constraint("Coincident", 62, 2, 63, 1))
sketch6.addConstraint(Sketcher.Constraint("Coincident", 63, 2, 60, 1))
sketch6.addConstraint(Sketcher.Constraint("Vertical", 0))
sketch6.addConstraint(Sketcher.Constraint("Horizontal", 1))
sketch6.addConstraint(Sketcher.Constraint("Vertical", 2))
sketch6.addConstraint(Sketcher.Constraint("Horizontal", 3))
sketch6.addConstraint(Sketcher.Constraint("Vertical", 4))
sketch6.addConstraint(Sketcher.Constraint("Horizontal", 5))
sketch6.addConstraint(Sketcher.Constraint("Vertical", 6))
sketch6.addConstraint(Sketcher.Constraint("Horizontal", 7))
sketch6.addConstraint(Sketcher.Constraint("Vertical", 8))
sketch6.addConstraint(Sketcher.Constraint("Horizontal", 9))
sketch6.addConstraint(Sketcher.Constraint("Vertical", 10))
sketch6.addConstraint(Sketcher.Constraint("Horizontal", 11))
sketch6.addConstraint(Sketcher.Constraint("Vertical", 12))
sketch6.addConstraint(Sketcher.Constraint("Horizontal", 13))
sketch6.addConstraint(Sketcher.Constraint("Vertical", 14))
sketch6.addConstraint(Sketcher.Constraint("Horizontal", 15))
sketch6.addConstraint(Sketcher.Constraint("Vertical", 16))
sketch6.addConstraint(Sketcher.Constraint("Horizontal", 17))
sketch6.addConstraint(Sketcher.Constraint("Vertical", 18))
sketch6.addConstraint(Sketcher.Constraint("Horizontal", 19))
sketch6.addConstraint(Sketcher.Constraint("Vertical", 20))
sketch6.addConstraint(Sketcher.Constraint("Horizontal", 21))
sketch6.addConstraint(Sketcher.Constraint("Vertical", 22))
sketch6.addConstraint(Sketcher.Constraint("Horizontal", 23))
sketch6.addConstraint(Sketcher.Constraint("Vertical", 24))
sketch6.addConstraint(Sketcher.Constraint("Horizontal", 25))
sketch6.addConstraint(Sketcher.Constraint("Vertical", 26))
sketch6.addConstraint(Sketcher.Constraint("Horizontal", 27))
sketch6.addConstraint(Sketcher.Constraint("Vertical", 28))
sketch6.addConstraint(Sketcher.Constraint("Horizontal", 29))
sketch6.addConstraint(Sketcher.Constraint("Vertical", 30))
sketch6.addConstraint(Sketcher.Constraint("Horizontal", 31))
sketch6.addConstraint(Sketcher.Constraint("Vertical", 32))
sketch6.addConstraint(Sketcher.Constraint("Horizontal", 33))
sketch6.addConstraint(Sketcher.Constraint("Vertical", 34))
sketch6.addConstraint(Sketcher.Constraint("Horizontal", 35))
sketch6.addConstraint(Sketcher.Constraint("Vertical", 36))
sketch6.addConstraint(Sketcher.Constraint("Horizontal", 37))
sketch6.addConstraint(Sketcher.Constraint("Vertical", 38))
sketch6.addConstraint(Sketcher.Constraint("Horizontal", 39))
sketch6.addConstraint(Sketcher.Constraint("Vertical", 40))
sketch6.addConstraint(Sketcher.Constraint("Horizontal", 41))
sketch6.addConstraint(Sketcher.Constraint("Vertical", 42))
sketch6.addConstraint(Sketcher.Constraint("Horizontal", 43))
sketch6.addConstraint(Sketcher.Constraint("Vertical", 44))
sketch6.addConstraint(Sketcher.Constraint("Horizontal", 45))
sketch6.addConstraint(Sketcher.Constraint("Vertical", 46))
sketch6.addConstraint(Sketcher.Constraint("Horizontal", 47))
sketch6.addConstraint(Sketcher.Constraint("Vertical", 48))
sketch6.addConstraint(Sketcher.Constraint("Horizontal", 49))
sketch6.addConstraint(Sketcher.Constraint("Vertical", 50))
sketch6.addConstraint(Sketcher.Constraint("Horizontal", 51))
sketch6.addConstraint(Sketcher.Constraint("Vertical", 52))
sketch6.addConstraint(Sketcher.Constraint("Horizontal", 53))
sketch6.addConstraint(Sketcher.Constraint("Vertical", 54))
sketch6.addConstraint(Sketcher.Constraint("Horizontal", 55))
sketch6.addConstraint(Sketcher.Constraint("Vertical", 56))
sketch6.addConstraint(Sketcher.Constraint("Horizontal", 57))
sketch6.addConstraint(Sketcher.Constraint("Vertical", 58))
sketch6.addConstraint(Sketcher.Constraint("Horizontal", 59))
sketch6.addConstraint(Sketcher.Constraint("Vertical", 60))
sketch6.addConstraint(Sketcher.Constraint("Horizontal", 61))
sketch6.addConstraint(Sketcher.Constraint("Vertical", 62))
sketch6.addConstraint(Sketcher.Constraint("Horizontal", 63))
sketch6.addConstraint(Sketcher.Constraint("Horizontal", 1, 2, 4, 2))
sketch6.addConstraint(Sketcher.Constraint("Horizontal", 3, 2, 6, 2))
sketch6.addConstraint(Sketcher.Constraint("Horizontal", 5, 2, 8, 2))
sketch6.addConstraint(Sketcher.Constraint("Horizontal", 7, 2, 10, 2))
sketch6.addConstraint(Sketcher.Constraint("Horizontal", 9, 2, 12, 2))
sketch6.addConstraint(Sketcher.Constraint("Horizontal", 11, 2, 14, 2))
sketch6.addConstraint(Sketcher.Constraint("Horizontal", 13, 2, 16, 2))
sketch6.addConstraint(Sketcher.Constraint("Horizontal", 15, 2, 18, 2))
sketch6.addConstraint(Sketcher.Constraint("Horizontal", 17, 2, 20, 2))
sketch6.addConstraint(Sketcher.Constraint("Horizontal", 19, 2, 22, 2))
sketch6.addConstraint(Sketcher.Constraint("Horizontal", 21, 2, 24, 2))
sketch6.addConstraint(Sketcher.Constraint("Horizontal", 23, 2, 26, 2))
sketch6.addConstraint(Sketcher.Constraint("Horizontal", 25, 2, 28, 2))
sketch6.addConstraint(Sketcher.Constraint("Horizontal", 27, 2, 30, 2))
sketch6.addConstraint(Sketcher.Constraint("Horizontal", 29, 2, 32, 2))
sketch6.addConstraint(Sketcher.Constraint("Horizontal", 31, 2, 34, 2))
sketch6.addConstraint(Sketcher.Constraint("Horizontal", 33, 2, 36, 2))
sketch6.addConstraint(Sketcher.Constraint("Horizontal", 35, 2, 38, 2))
sketch6.addConstraint(Sketcher.Constraint("Horizontal", 37, 2, 40, 2))
sketch6.addConstraint(Sketcher.Constraint("Horizontal", 39, 2, 42, 2))
sketch6.addConstraint(Sketcher.Constraint("Horizontal", 41, 2, 44, 2))
sketch6.addConstraint(Sketcher.Constraint("Horizontal", 43, 2, 46, 2))
sketch6.addConstraint(Sketcher.Constraint("Horizontal", 45, 2, 48, 2))
sketch6.addConstraint(Sketcher.Constraint("Horizontal", 47, 2, 50, 2))
sketch6.addConstraint(Sketcher.Constraint("Horizontal", 49, 2, 52, 2))
sketch6.addConstraint(Sketcher.Constraint("Horizontal", 51, 2, 54, 2))
sketch6.addConstraint(Sketcher.Constraint("Horizontal", 53, 2, 56, 2))
sketch6.addConstraint(Sketcher.Constraint("Horizontal", 55, 2, 58, 2))
sketch6.addConstraint(Sketcher.Constraint("Horizontal", 57, 2, 60, 2))
sketch6.addConstraint(Sketcher.Constraint("Horizontal", 59, 2, 62, 2))
sketch6.addConstraint(Sketcher.Constraint("Equal", 3, 9))
sketch6.addConstraint(Sketcher.Constraint("Equal", 11, 13))
sketch6.addConstraint(Sketcher.Constraint("Equal", 15, 17))
sketch6.addConstraint(Sketcher.Constraint("Equal", 19, 21))
sketch6.addConstraint(Sketcher.Constraint("Equal", 23, 25))
sketch6.addConstraint(Sketcher.Constraint("Equal", 27, 29))
sketch6.addConstraint(Sketcher.Constraint("Equal", 31, 33))
sketch6.addConstraint(Sketcher.Constraint("Equal", 35, 37))
sketch6.addConstraint(Sketcher.Constraint("Equal", 39, 41))
sketch6.addConstraint(Sketcher.Constraint("Equal", 43, 45))
sketch6.addConstraint(Sketcher.Constraint("Equal", 47, 49))
sketch6.addConstraint(Sketcher.Constraint("Equal", 51, 53))
sketch6.addConstraint(Sketcher.Constraint("Equal", 55, 57))
sketch6.addConstraint(Sketcher.Constraint("Equal", 59, 61))
sketch6.addConstraint(Sketcher.Constraint("Equal", 63, 0))
sketch6.addConstraint(Sketcher.Constraint("DistanceX", 1, 1, 1, 2, 0.6))
sketch6.addConstraint(Sketcher.Constraint("DistanceX", 5, 1, 5, 2, 0.52))
sketch6.addConstraint(Sketcher.Constraint("DistanceX", -1, 1, 0, 2, 31.95))
sketch6.addConstraint(Sketcher.Constraint("DistanceX", -1, 1, 4, 2, 29.35))
sketch6.addConstraint(Sketcher.Constraint("DistanceX", -1, 1, 8, 2, 26.59))
sketch6.addConstraint(Sketcher.Constraint("DistanceX", -1, 1, 12, 2, 23.91))
sketch6.addConstraint(Sketcher.Constraint("DistanceX", -1, 1, 16, 2, 21.23))
sketch6.addConstraint(Sketcher.Constraint("DistanceX", -1, 1, 20, 2, 18.55))
sketch6.addConstraint(Sketcher.Constraint("DistanceX", -1, 1, 24, 2, 15.87))
sketch6.addConstraint(Sketcher.Constraint("DistanceX", -1, 1, 28, 2, 13.19))
sketch6.addConstraint(Sketcher.Constraint("DistanceX", -1, 1, 32, 2, 10.51))
sketch6.addConstraint(Sketcher.Constraint("DistanceX", -1, 1, 36, 2, 7.83))
sketch6.addConstraint(Sketcher.Constraint("DistanceX", -1, 1, 40, 2, 5.15))
sketch6.addConstraint(Sketcher.Constraint("DistanceX", -1, 1, 44, 2, 2.47))
sketch6.addConstraint(Sketcher.Constraint("DistanceX", 48, 2, -1, 1, 8.25))
sketch6.addConstraint(Sketcher.Constraint("DistanceX", 52, 2, -1, 1, 5.57))
sketch6.addConstraint(Sketcher.Constraint("DistanceX", 56, 2, -1, 1, 0.21))
sketch6.addConstraint(Sketcher.Constraint("DistanceX", 60, 2, -1, 1, 2.89))
sketch6.addConstraint(Sketcher.Constraint("DistanceY", -1, 1, 0, 2, 14.992217))
pad6 = body.newObject("PartDesign::Pad", "Pad005")
pad6.Profile = sketch6
pad6.Length = 6

doc.recompute()
